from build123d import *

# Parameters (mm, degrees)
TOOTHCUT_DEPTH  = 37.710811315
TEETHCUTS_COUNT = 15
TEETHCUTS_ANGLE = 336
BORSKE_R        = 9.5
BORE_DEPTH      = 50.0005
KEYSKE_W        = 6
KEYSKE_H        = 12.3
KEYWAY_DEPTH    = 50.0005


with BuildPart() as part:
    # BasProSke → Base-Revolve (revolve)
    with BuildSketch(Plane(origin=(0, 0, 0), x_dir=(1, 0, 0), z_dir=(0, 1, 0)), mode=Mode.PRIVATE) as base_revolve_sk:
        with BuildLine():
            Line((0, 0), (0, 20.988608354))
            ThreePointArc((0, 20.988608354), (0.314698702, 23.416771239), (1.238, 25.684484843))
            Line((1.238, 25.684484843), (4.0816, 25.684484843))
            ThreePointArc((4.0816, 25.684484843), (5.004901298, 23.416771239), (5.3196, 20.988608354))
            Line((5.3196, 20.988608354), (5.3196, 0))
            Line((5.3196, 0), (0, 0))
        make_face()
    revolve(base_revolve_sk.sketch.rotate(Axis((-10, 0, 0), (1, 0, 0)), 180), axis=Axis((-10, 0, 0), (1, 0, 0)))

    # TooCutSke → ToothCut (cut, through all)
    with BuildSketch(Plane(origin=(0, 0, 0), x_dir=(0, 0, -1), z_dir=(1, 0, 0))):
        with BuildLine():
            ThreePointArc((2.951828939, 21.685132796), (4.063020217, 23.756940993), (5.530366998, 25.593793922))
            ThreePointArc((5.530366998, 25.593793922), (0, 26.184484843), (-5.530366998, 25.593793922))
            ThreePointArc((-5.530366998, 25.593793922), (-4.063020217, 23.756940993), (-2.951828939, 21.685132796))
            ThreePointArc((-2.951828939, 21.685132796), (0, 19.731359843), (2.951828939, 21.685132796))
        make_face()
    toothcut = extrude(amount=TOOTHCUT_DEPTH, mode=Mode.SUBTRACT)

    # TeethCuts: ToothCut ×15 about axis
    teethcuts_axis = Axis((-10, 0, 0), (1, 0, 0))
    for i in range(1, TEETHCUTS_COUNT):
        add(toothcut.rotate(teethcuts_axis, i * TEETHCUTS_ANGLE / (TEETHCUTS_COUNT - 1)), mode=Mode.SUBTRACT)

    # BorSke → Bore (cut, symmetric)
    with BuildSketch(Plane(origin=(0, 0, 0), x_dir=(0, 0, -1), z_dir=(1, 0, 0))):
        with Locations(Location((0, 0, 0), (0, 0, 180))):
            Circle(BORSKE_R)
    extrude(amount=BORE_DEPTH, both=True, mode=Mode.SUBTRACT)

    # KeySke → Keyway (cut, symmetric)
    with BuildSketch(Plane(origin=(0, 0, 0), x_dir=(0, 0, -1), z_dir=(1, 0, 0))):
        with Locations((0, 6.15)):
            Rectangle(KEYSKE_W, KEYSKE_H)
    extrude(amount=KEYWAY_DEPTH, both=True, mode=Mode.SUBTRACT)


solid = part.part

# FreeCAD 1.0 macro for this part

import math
import FreeCAD as App
import Part
import Sketcher
from FreeCAD import Vector
Q = App.Units.Quantity


def add_polygon(sketch, points):
    """Adds a closed chain of lines whose ends are joined by coincident constraints."""
    first, n = sketch.GeometryCount, len(points)
    for a, b in zip(points, points[1:] + points[:1]):
        sketch.addGeometry(Part.LineSegment(App.Vector(*a, 0), App.Vector(*b, 0)), False)
    for i in range(n):
        sketch.addConstraint(Sketcher.Constraint("Coincident", first + i, 2, first + (i + 1) % n, 1))

doc = App.newDocument("Part")
body = doc.addObject("PartDesign::Body", "Body")

# Sketch on XZ plane
sketch1 = body.newObject("Sketcher::SketchObject", "Sketch")
sketch1.AttachmentSupport = (doc.getObject("XZ_Plane"), [""])
sketch1.MapMode = "FlatFace"
sketch1.addGeometry(Part.LineSegment(Vector(0, -21, 0), Vector(0, 0, 0)), False)
sketch1.addGeometry(Part.LineSegment(Vector(0, 0, 0), Vector(5.3, 0, 0)), False)
sketch1.addGeometry(Part.LineSegment(Vector(5.3, 0, 0), Vector(5.3, -21, 0)), False)
sketch1.addGeometry(Part.ArcOfCircle(Part.Circle(Vector(-4.2, -21, 0), Vector(0, 0, 1), 9.5), math.radians(-30), math.radians(0)), False)
sketch1.addGeometry(Part.LineSegment(Vector(4.1, -25.7, 0), Vector(1.2, -25.7, 0)), False)
sketch1.addGeometry(Part.ArcOfCircle(Part.Circle(Vector(9.5, -21, 0), Vector(0, 0, 1), 9.5), math.radians(-180), math.radians(-150)), False)
sketch1.addConstraint(Sketcher.Constraint("Coincident", 0, 2, 1, 1))
sketch1.addConstraint(Sketcher.Constraint("Coincident", 1, 2, 2, 1))
sketch1.addConstraint(Sketcher.Constraint("Tangent", 2, 2, 3, 2))
sketch1.addConstraint(Sketcher.Constraint("Coincident", 3, 1, 4, 1))
sketch1.addConstraint(Sketcher.Constraint("Coincident", 4, 2, 5, 2))
sketch1.addConstraint(Sketcher.Constraint("Tangent", 5, 1, 0, 1))
sketch1.addConstraint(Sketcher.Constraint("Vertical", 0))
sketch1.addConstraint(Sketcher.Constraint("Horizontal", 1))
sketch1.addConstraint(Sketcher.Constraint("Vertical", 2))
sketch1.addConstraint(Sketcher.Constraint("Horizontal", 4))
sketch1.addConstraint(Sketcher.Constraint("Coincident", 0, 2, -1, 1))
sketch1.addConstraint(Sketcher.Constraint("Equal", 3, 5))
sketch1.addConstraint(Sketcher.Constraint("Horizontal", 3, 3, 5, 3))
sketch1.addConstraint(Sketcher.Constraint("Radius", 3, Q("9.525 mm")))
sketch1.addConstraint(Sketcher.Constraint("DistanceX", 1, 1, 1, 2, Q("5.3196 mm")))
sketch1.addConstraint(Sketcher.Constraint("DistanceX", 4, 2, 4, 1, Q("2.8436 mm")))
sketch1.addConstraint(Sketcher.Constraint("DistanceY", 0, 1, 0, 2, Q("20.988608 mm")))
revolution = body.newObject("PartDesign::Revolution", "Revolution")
revolution.Profile = sketch1
revolution.ReferenceAxis = (sketch1, ["H_Axis"])
revolution.Angle = 360

# Sketch on YZ plane
sketch2 = body.newObject("Sketcher::SketchObject", "Sketch001")
sketch2.AttachmentSupport = (doc.getObject("YZ_Plane"), [""])
sketch2.MapMode = "FlatFace"
sketch2.addGeometry(Part.ArcOfCircle(Part.Circle(Vector(16.6, -14.9, 0), Vector(0, 0, 1), 13), math.radians(46), math.radians(67)), False)
sketch2.addGeometry(Part.ArcOfCircle(Part.Circle(Vector(0, 0, 0), Vector(0, 0, 1), 26.2), math.radians(-12), math.radians(12)), False)
sketch2.addGeometry(Part.ArcOfCircle(Part.Circle(Vector(16.6, 14.9, 0), Vector(0, 0, 1), 13), math.radians(-67), math.radians(-46)), False)
sketch2.addGeometry(Part.ArcOfCircle(Part.Circle(Vector(22.9, 0, 0), Vector(0, 0, 1), 3.2), math.radians(113), math.radians(247)), False)
sketch2.addConstraint(Sketcher.Constraint("Coincident", 0, 1, 1, 1))
sketch2.addConstraint(Sketcher.Constraint("Coincident", 1, 2, 2, 2))
sketch2.addConstraint(Sketcher.Constraint("Tangent", 2, 1, 3, 1))
sketch2.addConstraint(Sketcher.Constraint("Tangent", 3, 2, 0, 2))
sketch2.addConstraint(Sketcher.Constraint("Coincident", 1, 3, -1, 1))
sketch2.addConstraint(Sketcher.Constraint("Equal", 0, 2))
sketch2.addConstraint(Sketcher.Constraint("Symmetric", 0, 3, 2, 3, -1))
sketch2.addConstraint(Sketcher.Constraint("Radius", 0, Q("12.954 mm")))
sketch2.addConstraint(Sketcher.Constraint("Radius", 3, Q("3.20675 mm")))
sketch2.addConstraint(Sketcher.Constraint("Radius", 1, Q("26.184485 mm")))
sketch2.addConstraint(Sketcher.Constraint("DistanceX", -1, 1, 0, 3, Q("16.623602 mm")))
sketch2.addConstraint(Sketcher.Constraint("DistanceY", 0, 3, -1, 1, Q("14.876049 mm")))
pocket1 = body.newObject("PartDesign::Pocket", "Pocket")
pocket1.Profile = sketch2
pocket1.Type = "ThroughAll"
pocket1.Reversed = True
doc.recompute()

polarpattern = body.newObject("PartDesign::PolarPattern", "PolarPattern")
polarpattern.Originals = [pocket1]
polarpattern.Axis = (doc.getObject("X_Axis"), [""])
polarpattern.Angle = 360
polarpattern.Occurrences = 15
body.Tip = polarpattern

# Sketch on YZ plane
sketch3 = body.newObject("Sketcher::SketchObject", "Sketch002")
sketch3.AttachmentSupport = (doc.getObject("YZ_Plane"), [""])
sketch3.MapMode = "FlatFace"
sketch3.addGeometry(Part.Circle(Vector(0, 0, 0), Vector(0, 0, 1), 10), False)
sketch3.addConstraint(Sketcher.Constraint("Coincident", 0, 3, -1, 1))
sketch3.addConstraint(Sketcher.Constraint("Diameter", 0, Q("19 mm")))
pocket2 = body.newObject("PartDesign::Pocket", "Pocket001")
pocket2.Profile = sketch3
pocket2.Length = 100.001
pocket2.Midplane = True

# Sketch on YZ plane
sketch4 = body.newObject("Sketcher::SketchObject", "Sketch003")
sketch4.AttachmentSupport = (doc.getObject("YZ_Plane"), [""])
sketch4.MapMode = "FlatFace"
add_polygon(sketch4, [(12, 3), (0, 3), (0, -3), (12, -3)])  # lines 0-3
sketch4.addConstraint(Sketcher.Constraint("Horizontal", 0))
sketch4.addConstraint(Sketcher.Constraint("Vertical", 1))
sketch4.addConstraint(Sketcher.Constraint("Horizontal", 2))
sketch4.addConstraint(Sketcher.Constraint("Vertical", 3))
sketch4.addConstraint(Sketcher.Constraint("Symmetric", 0, 2, 1, 2, -1, 1))
sketch4.addConstraint(Sketcher.Constraint("DistanceY", 1, 2, 1, 1, Q("6 mm")))
sketch4.addConstraint(Sketcher.Constraint("DistanceX", 0, 2, 0, 1, Q("12.3 mm")))
pocket3 = body.newObject("PartDesign::Pocket", "Pocket002")
pocket3.Profile = sketch4
pocket3.Length = 100.001
pocket3.Midplane = True

doc.recompute()
